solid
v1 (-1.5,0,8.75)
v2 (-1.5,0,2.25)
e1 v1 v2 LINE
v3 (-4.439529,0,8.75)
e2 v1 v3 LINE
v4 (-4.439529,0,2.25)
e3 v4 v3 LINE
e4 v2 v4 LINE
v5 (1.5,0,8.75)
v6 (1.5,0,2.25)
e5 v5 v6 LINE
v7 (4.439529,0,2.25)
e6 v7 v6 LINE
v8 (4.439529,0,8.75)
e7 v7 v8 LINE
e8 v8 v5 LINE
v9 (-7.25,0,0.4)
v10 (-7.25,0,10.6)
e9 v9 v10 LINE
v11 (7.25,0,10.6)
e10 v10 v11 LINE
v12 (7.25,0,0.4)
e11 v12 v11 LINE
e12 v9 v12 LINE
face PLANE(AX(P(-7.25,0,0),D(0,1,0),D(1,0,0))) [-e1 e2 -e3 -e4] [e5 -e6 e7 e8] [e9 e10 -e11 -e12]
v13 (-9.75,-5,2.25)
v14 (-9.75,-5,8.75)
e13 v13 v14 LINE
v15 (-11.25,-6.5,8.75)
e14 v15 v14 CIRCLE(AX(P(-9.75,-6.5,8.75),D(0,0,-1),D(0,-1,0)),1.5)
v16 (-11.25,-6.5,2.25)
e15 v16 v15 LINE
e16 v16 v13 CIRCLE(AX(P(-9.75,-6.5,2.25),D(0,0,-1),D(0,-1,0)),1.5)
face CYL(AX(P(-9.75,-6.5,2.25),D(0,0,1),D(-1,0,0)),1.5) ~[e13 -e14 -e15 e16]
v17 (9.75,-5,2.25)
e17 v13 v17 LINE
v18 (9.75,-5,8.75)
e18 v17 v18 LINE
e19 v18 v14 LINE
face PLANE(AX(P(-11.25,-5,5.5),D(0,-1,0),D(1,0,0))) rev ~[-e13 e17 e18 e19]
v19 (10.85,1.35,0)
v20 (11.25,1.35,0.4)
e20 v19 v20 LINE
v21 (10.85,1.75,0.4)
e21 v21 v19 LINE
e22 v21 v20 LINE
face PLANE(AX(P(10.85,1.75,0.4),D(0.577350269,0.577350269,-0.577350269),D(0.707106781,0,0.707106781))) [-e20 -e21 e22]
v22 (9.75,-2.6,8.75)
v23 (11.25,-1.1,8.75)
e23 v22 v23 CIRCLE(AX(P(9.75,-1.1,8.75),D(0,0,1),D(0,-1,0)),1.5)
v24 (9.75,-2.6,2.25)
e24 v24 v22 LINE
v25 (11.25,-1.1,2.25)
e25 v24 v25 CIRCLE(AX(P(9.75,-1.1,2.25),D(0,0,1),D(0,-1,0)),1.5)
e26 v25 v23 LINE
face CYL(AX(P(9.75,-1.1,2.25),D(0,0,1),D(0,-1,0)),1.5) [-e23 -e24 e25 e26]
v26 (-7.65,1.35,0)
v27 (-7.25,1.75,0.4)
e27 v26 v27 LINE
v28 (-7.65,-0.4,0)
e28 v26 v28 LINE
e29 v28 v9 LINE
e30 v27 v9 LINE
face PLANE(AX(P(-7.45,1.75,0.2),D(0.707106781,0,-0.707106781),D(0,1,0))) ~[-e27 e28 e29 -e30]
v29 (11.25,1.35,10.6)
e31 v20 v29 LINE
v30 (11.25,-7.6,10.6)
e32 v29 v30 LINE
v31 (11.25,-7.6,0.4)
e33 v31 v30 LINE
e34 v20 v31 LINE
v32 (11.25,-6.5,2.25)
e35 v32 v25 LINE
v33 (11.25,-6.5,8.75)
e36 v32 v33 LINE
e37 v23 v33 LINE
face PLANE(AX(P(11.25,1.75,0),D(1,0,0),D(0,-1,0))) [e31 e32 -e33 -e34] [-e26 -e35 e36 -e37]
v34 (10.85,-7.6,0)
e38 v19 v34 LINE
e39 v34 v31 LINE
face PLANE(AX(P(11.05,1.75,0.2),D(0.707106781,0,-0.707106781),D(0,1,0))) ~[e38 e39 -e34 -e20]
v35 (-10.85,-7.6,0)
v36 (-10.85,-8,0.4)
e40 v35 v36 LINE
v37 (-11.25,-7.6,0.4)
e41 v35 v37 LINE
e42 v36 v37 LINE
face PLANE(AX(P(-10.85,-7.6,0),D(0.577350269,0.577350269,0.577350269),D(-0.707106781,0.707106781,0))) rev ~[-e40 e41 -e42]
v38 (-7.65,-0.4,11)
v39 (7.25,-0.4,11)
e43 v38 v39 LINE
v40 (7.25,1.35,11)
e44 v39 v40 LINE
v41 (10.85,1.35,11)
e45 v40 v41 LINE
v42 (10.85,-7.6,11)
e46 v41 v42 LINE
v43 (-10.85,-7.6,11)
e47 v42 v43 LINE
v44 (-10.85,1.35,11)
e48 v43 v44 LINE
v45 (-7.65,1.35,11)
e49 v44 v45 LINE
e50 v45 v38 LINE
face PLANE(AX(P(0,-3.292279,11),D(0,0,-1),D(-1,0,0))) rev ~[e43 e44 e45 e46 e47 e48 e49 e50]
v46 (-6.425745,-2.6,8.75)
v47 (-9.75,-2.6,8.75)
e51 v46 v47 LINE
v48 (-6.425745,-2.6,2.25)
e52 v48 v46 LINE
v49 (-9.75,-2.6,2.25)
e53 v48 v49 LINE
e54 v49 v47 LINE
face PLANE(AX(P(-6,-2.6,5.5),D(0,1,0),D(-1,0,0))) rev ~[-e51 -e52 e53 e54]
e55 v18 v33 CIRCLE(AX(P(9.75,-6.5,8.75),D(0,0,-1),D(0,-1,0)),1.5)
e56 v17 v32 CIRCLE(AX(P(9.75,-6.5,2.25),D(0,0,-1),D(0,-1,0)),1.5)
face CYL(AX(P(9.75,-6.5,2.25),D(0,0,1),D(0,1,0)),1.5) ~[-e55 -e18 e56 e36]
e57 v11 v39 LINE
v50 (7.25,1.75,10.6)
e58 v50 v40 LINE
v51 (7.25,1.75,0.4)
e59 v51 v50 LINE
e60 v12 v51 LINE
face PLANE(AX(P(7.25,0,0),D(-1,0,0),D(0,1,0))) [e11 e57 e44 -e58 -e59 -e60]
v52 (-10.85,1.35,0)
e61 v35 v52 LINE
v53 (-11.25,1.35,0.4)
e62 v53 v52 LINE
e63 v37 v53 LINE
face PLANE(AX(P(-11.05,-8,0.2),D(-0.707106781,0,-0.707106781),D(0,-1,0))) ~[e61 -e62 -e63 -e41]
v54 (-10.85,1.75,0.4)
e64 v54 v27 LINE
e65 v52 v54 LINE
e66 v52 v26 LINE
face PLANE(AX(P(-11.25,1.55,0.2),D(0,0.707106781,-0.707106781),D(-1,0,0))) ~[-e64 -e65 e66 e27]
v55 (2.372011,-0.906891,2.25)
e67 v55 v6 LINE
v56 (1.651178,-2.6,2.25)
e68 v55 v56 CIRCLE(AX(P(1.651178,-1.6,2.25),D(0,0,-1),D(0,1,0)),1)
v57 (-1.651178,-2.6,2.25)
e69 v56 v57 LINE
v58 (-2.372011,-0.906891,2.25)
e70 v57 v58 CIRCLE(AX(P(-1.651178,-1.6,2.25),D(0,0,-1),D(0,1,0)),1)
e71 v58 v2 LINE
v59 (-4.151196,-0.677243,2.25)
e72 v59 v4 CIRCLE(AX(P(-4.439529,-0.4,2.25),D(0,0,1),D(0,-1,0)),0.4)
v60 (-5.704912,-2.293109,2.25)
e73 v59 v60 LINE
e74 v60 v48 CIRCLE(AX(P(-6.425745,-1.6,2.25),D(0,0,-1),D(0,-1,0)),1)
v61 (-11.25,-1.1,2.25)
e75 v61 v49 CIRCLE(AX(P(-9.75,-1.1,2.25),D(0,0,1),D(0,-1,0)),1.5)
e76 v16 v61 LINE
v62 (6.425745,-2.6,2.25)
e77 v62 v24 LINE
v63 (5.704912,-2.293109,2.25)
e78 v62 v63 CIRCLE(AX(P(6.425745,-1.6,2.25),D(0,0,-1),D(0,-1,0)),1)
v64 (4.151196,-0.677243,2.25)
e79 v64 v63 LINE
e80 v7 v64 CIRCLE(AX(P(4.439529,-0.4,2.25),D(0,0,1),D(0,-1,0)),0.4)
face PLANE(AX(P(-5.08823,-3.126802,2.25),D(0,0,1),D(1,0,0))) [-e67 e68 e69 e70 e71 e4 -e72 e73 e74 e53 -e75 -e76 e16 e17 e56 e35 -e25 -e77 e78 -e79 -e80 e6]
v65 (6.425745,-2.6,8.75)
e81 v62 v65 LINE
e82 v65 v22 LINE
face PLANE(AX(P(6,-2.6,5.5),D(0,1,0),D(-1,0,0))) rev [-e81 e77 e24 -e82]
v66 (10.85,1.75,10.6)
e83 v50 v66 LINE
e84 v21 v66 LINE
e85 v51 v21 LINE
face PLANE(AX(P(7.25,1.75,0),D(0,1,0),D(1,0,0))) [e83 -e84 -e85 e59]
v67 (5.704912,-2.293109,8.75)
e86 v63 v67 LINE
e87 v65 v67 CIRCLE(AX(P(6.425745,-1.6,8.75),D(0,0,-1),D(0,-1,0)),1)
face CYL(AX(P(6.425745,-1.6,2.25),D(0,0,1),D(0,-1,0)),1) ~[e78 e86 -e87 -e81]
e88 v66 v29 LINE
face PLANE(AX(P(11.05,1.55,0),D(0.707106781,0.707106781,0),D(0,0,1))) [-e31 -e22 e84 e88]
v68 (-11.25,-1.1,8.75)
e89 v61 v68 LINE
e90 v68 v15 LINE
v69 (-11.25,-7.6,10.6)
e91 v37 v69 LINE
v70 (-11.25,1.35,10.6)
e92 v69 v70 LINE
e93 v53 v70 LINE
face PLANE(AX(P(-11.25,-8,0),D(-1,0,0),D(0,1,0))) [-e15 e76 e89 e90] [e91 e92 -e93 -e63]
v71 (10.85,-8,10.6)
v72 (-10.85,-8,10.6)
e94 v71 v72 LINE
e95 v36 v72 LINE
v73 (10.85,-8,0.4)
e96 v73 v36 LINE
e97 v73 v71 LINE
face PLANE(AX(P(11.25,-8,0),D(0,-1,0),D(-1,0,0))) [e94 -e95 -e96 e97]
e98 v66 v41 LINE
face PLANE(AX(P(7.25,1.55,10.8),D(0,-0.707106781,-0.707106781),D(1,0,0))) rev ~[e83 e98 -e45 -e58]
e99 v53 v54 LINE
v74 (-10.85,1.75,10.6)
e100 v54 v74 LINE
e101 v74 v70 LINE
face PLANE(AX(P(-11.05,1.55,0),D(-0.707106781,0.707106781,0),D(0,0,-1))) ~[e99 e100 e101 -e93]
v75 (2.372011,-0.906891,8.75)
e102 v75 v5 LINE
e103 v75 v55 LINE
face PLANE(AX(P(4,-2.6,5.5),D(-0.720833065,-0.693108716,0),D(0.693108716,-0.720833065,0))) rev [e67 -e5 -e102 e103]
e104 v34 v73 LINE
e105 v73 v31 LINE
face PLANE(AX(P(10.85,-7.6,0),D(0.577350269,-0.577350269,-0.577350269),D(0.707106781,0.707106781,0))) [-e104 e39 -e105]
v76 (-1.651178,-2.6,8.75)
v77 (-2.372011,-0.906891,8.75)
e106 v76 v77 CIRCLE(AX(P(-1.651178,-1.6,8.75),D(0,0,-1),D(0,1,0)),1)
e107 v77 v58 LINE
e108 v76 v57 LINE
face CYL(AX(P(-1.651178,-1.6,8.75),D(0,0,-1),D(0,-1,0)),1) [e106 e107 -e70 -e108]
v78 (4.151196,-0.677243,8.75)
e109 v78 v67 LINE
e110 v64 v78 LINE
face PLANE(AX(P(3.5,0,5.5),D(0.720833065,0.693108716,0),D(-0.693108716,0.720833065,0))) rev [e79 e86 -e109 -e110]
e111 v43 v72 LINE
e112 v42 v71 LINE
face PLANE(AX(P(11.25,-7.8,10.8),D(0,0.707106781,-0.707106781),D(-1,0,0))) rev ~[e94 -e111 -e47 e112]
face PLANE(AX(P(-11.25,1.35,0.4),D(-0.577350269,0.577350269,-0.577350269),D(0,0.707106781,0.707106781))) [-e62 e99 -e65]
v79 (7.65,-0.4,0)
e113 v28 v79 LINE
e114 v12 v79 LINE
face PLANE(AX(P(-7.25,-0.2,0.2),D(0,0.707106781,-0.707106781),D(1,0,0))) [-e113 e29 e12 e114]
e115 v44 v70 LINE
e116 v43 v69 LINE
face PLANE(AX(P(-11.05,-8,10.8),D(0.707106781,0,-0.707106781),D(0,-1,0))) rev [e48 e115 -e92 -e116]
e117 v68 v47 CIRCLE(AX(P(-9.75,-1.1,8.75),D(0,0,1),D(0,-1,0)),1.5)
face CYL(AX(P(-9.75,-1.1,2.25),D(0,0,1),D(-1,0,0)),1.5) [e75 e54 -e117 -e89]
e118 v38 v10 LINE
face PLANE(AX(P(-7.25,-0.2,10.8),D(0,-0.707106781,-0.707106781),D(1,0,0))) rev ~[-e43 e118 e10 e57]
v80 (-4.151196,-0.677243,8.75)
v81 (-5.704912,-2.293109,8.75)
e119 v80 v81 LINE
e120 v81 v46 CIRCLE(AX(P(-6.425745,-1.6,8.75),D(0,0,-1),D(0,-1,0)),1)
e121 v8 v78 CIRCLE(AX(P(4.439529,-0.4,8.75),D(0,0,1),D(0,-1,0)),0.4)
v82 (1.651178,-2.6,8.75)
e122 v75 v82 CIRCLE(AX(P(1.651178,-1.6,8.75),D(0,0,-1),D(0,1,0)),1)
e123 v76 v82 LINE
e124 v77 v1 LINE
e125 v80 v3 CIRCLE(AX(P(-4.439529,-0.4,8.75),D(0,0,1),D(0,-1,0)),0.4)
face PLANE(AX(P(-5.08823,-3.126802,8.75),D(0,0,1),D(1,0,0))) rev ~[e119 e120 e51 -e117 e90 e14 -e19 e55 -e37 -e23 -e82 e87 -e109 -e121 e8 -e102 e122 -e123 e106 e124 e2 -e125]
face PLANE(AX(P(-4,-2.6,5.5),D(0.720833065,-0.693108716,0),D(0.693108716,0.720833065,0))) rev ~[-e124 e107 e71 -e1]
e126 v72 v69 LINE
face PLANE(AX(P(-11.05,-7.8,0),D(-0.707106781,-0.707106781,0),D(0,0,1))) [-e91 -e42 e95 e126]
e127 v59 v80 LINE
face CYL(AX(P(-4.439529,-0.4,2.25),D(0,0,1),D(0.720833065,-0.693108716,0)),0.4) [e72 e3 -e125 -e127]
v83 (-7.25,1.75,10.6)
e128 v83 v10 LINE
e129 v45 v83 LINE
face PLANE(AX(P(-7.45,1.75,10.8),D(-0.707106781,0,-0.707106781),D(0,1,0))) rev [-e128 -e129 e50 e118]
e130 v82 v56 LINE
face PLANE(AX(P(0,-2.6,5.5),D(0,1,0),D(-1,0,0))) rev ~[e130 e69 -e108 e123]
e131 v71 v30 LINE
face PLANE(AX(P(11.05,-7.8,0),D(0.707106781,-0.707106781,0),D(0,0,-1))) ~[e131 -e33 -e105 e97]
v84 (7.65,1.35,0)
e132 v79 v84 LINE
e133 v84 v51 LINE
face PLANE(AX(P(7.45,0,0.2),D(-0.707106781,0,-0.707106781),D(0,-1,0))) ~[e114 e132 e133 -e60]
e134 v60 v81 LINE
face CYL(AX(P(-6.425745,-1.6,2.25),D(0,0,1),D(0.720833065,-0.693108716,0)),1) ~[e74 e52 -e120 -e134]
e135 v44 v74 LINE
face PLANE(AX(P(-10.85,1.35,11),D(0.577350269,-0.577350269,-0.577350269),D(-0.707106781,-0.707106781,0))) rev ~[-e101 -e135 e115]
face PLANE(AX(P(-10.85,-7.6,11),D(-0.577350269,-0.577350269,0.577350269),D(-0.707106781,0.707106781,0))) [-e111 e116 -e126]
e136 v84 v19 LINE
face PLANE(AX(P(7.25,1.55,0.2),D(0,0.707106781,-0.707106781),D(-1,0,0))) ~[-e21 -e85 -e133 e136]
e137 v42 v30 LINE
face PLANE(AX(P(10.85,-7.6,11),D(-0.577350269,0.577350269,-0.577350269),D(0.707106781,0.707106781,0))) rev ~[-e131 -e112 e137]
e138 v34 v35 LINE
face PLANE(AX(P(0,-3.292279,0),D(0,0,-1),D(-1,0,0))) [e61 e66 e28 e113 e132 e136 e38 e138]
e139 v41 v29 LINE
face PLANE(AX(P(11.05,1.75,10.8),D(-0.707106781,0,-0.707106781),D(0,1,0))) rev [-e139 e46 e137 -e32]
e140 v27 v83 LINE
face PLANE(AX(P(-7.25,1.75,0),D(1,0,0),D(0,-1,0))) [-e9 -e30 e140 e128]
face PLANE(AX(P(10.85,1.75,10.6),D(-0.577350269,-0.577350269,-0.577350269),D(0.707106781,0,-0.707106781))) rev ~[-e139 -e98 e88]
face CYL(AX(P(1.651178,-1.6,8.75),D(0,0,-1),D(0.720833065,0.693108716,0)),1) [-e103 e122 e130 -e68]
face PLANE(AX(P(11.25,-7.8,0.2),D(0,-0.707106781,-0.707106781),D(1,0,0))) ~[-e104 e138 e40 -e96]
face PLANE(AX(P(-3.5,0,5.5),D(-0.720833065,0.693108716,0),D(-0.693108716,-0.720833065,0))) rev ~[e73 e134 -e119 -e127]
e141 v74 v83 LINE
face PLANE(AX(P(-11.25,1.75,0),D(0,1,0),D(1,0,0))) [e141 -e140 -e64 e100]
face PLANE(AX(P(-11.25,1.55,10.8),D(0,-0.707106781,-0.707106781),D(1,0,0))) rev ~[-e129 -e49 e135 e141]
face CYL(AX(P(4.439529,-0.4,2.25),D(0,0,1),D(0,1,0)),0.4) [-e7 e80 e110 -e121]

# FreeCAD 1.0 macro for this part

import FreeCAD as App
import Part
import Sketcher

V = App.Vector
Q = App.Units.Quantity


def edges_at(feature, points):
    """Names of the edges that pass closest to the given points."""
    edges = feature.Shape.Edges
    near = lambda p: min(range(len(edges)), key=lambda i: edges[i].distToShape(Part.Vertex(*p))[0])
    return sorted({f"Edge{near(p) + 1}" for p in points})


def add_polygon(sketch, points):
    """Adds a closed chain of lines whose ends are joined by coincident constraints."""
    first, n = sketch.GeometryCount, len(points)
    for a, b in zip(points, points[1:] + points[:1]):
        sketch.addGeometry(Part.LineSegment(App.Vector(*a, 0), App.Vector(*b, 0)), False)
    for i in range(n):
        sketch.addConstraint(Sketcher.Constraint("Coincident", first + i, 2, first + (i + 1) % n, 1))

doc = App.newDocument("Part")
body = doc.addObject("PartDesign::Body", "Body")

# Sketch on XY plane
sketch1 = body.newObject("Sketcher::SketchObject", "Sketch")
sketch1.AttachmentSupport = (doc.getObject("XY_Plane"), [""])
sketch1.MapMode = "FlatFace"
add_polygon(sketch1, [(-7.25, 0), (-7.25, 1.75), (-11.25, 1.75), (-11.25, -8), (11.25, -8), (11.25, 1.75), (7.25, 1.75), (7.25, 0)])  # lines 0-7
sketch1.addConstraint(Sketcher.Constraint("Vertical", 0))
sketch1.addConstraint(Sketcher.Constraint("Horizontal", 1))
sketch1.addConstraint(Sketcher.Constraint("Vertical", 2))
sketch1.addConstraint(Sketcher.Constraint("Horizontal", 3))
sketch1.addConstraint(Sketcher.Constraint("Vertical", 4))
sketch1.addConstraint(Sketcher.Constraint("Horizontal", 5))
sketch1.addConstraint(Sketcher.Constraint("Vertical", 6))
sketch1.addConstraint(Sketcher.Constraint("Horizontal", 7))
sketch1.addConstraint(Sketcher.Constraint("Symmetric", 6, 2, 7, 2, -1, 1))
sketch1.addConstraint(Sketcher.Constraint("Symmetric", 1, 2, 4, 2, -2))
sketch1.addConstraint(Sketcher.Constraint("DistanceX", 1, 2, 1, 1, Q("4 mm")))
sketch1.addConstraint(Sketcher.Constraint("DistanceX", 3, 1, 3, 2, Q("22.5 mm")))
sketch1.addConstraint(Sketcher.Constraint("DistanceY", 2, 2, -1, 1, Q("8 mm")))
sketch1.addConstraint(Sketcher.Constraint("DistanceY", 0, 1, 0, 2, Q("1.75 mm")))
pad1 = body.newObject("PartDesign::Pad", "Pad")
pad1.Profile = sketch1
pad1.Length = 11

# Sketch on XY plane
sketch2 = body.newObject("Sketcher::SketchObject", "Sketch001")
sketch2.AttachmentSupport = (doc.getObject("XY_Plane"), [""])
sketch2.MapMode = "FlatFace"
sketch2.AttachmentOffset = App.Placement(V(0, 0, 5.5), App.Rotation())
add_polygon(sketch2, [(-1.5, 0), (-3.5, 0), (-6, -2.6), (-11.25, -2.6), (-11.25, -5), (0, -5), (0, -2.6), (-4, -2.6)])  # lines 0-7
sketch2.addConstraint(Sketcher.Constraint("Horizontal", 0))
sketch2.addConstraint(Sketcher.Constraint("Horizontal", 2))
sketch2.addConstraint(Sketcher.Constraint("Vertical", 3))
sketch2.addConstraint(Sketcher.Constraint("Horizontal", 4))
sketch2.addConstraint(Sketcher.Constraint("Vertical", 5))
sketch2.addConstraint(Sketcher.Constraint("Horizontal", 6))
sketch2.addConstraint(Sketcher.Constraint("PointOnObject", 0, 2, -1))
sketch2.addConstraint(Sketcher.Constraint("PointOnObject", 4, 2, -2))
sketch2.addConstraint(Sketcher.Constraint("Parallel", 1, 7))
sketch2.addConstraint(Sketcher.Constraint("Horizontal", 2, 2, 5, 2))
sketch2.addConstraint(Sketcher.Constraint("DistanceX", 0, 2, 0, 1, Q("2 mm")))
sketch2.addConstraint(Sketcher.Constraint("DistanceX", 6, 2, 6, 1, Q("4 mm")))
sketch2.addConstraint(Sketcher.Constraint("DistanceY", 3, 2, 3, 1, Q("2.4 mm")))
sketch2.addConstraint(Sketcher.Constraint("DistanceY", 3, 2, -1, 1, Q("5 mm")))
sketch2.addConstraint(Sketcher.Constraint("DistanceX", 2, 2, 2, 1, Q("5.25 mm")))
sketch2.addConstraint(Sketcher.Constraint("DistanceX", 0, 2, -1, 1, Q("3.5 mm")))
pocket1 = body.newObject("PartDesign::Pocket", "Pocket")
pocket1.Profile = sketch2
pocket1.Length = 6.5
pocket1.Midplane = True
doc.recompute()

mirrored = body.newObject("PartDesign::Mirrored", "Mirrored")
mirrored.Originals = [pocket1]
mirrored.MirrorPlane = (doc.getObject("YZ_Plane"), [""])
body.Tip = mirrored
doc.recompute()

fillet = body.newObject("PartDesign::Fillet", "Fillet")
fillet.Base = (mirrored, edges_at(mirrored, [
    (11.25, -2.6, 5.5),
    (11.25, -5, 5.5),
    (-11.25, -2.6, 5.5),
    (-11.25, -5, 5.5),
]))
fillet.Radius = 1.5
doc.recompute()

fillet2 = body.newObject("PartDesign::Fillet", "Fillet001")
fillet2.Base = (fillet, edges_at(fillet, [
    (6, -2.6, 5.5),
    (4, -2.6, 5.5),
    (-6, -2.6, 5.5),
    (-4, -2.6, 5.5),
]))
fillet2.Radius = 1
doc.recompute()

fillet3 = body.newObject("PartDesign::Fillet", "Fillet002")
fillet3.Base = (fillet2, edges_at(fillet2, [(3.5, 0, 5.5), (-3.5, 0, 5.5)]))
fillet3.Radius = 0.4
doc.recompute()

chamfer = body.newObject("PartDesign::Chamfer", "Chamfer")
chamfer.Base = (fillet3, edges_at(fillet3, [
    (11.25, -8, 5.5),
    (-11.25, -8, 5.5),
    (0, -8, 0),
    (0, -8, 11),
    (11.25, -3.125, 11),
    (11.25, -3.125, 0),
    (-7.25, 0.875, 11),
    (-7.25, 0.875, 0),
    (0, 0, 11),
    (0, 0, 0),
    (7.25, 0.875, 0),
    (9.25, 1.75, 0),
    (9.25, 1.75, 11),
    (11.25, 1.75, 5.5),
    (-9.25, 1.75, 0),
    (-11.25, -3.125, 0),
    (-11.25, 1.75, 5.5),
    (-9.25, 1.75, 11),
    (-11.25, -3.125, 11),
]))
chamfer.Size = 0.4

doc.recompute()
